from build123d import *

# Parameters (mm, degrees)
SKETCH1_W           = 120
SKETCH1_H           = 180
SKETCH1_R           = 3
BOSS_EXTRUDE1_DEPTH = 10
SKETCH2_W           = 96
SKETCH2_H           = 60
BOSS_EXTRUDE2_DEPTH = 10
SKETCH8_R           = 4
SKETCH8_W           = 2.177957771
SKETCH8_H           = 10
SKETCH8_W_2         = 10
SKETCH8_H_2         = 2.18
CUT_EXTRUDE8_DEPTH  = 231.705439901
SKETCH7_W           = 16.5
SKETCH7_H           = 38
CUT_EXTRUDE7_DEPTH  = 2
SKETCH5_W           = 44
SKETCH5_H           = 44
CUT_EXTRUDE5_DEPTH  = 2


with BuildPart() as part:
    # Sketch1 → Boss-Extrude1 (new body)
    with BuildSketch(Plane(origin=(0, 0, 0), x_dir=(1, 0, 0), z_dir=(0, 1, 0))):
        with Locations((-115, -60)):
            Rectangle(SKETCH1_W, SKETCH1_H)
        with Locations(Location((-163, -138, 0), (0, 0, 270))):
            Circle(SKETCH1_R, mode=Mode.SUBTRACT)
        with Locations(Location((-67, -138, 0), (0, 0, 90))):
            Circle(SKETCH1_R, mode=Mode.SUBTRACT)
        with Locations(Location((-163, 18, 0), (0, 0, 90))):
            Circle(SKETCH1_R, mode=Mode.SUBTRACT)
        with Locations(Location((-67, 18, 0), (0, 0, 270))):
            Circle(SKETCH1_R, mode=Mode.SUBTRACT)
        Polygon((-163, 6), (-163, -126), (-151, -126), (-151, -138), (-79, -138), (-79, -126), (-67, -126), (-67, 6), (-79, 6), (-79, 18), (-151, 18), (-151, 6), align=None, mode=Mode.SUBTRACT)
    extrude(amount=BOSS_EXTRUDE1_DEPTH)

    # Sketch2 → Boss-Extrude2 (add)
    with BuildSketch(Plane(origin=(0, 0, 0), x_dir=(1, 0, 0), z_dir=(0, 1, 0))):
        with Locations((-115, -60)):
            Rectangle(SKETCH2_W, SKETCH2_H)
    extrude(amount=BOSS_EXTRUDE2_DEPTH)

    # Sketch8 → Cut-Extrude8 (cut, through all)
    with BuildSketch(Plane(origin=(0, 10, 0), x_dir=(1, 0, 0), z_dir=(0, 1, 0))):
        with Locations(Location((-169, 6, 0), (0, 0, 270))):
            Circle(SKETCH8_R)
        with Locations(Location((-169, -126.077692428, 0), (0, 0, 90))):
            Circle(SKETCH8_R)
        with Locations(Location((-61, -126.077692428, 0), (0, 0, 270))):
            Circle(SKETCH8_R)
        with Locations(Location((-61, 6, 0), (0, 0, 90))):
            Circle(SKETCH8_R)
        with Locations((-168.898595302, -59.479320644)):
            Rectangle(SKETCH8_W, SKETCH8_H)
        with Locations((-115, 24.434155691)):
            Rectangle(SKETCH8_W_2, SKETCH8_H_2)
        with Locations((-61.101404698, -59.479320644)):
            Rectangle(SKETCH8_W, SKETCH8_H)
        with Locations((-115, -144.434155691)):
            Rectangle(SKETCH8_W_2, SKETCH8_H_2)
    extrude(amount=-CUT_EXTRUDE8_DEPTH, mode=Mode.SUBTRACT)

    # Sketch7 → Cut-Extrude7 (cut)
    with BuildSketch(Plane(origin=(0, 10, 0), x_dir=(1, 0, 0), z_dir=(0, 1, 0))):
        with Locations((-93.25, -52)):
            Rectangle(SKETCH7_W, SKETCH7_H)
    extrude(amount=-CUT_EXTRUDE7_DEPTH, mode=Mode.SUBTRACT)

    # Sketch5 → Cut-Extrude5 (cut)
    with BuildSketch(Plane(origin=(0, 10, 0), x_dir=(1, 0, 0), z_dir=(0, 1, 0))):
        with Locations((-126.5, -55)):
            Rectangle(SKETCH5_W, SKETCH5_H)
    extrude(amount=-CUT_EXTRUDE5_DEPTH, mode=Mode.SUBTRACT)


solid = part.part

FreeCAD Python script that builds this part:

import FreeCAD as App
import Part
import Sketcher
Q = App.Units.Quantity

doc = App.newDocument("Part")
body = doc.addObject("PartDesign::Body", "Body")

# Sketch on XZ plane
sketch1 = body.newObject("Sketcher::SketchObject", "Sketch")
sketch1.AttachmentSupport = (doc.getObject("XZ_Plane"), [""])
sketch1.MapMode = "FlatFace"
sketch1.addGeometry([
    Part.LineSegment(App.Vector(-175, -30, 0), App.Vector(-175, 150, 0)),  # 0
    Part.LineSegment(App.Vector(-175, 150, 0), App.Vector(-55, 150, 0)),  # 1
    Part.LineSegment(App.Vector(-55, 150, 0), App.Vector(-55, -30, 0)),  # 2
    Part.LineSegment(App.Vector(-55, -30, 0), App.Vector(-175, -30, 0)),  # 3
    Part.Circle(App.Vector(-163, 138, 0), App.Vector(0, 0, 1), 3),  # 4
    Part.Circle(App.Vector(-67, 138, 0), App.Vector(0, 0, 1), 3),  # 5
    Part.Circle(App.Vector(-163, -18, 0), App.Vector(0, 0, 1), 3),  # 6
    Part.LineSegment(App.Vector(-163, 126, 0), App.Vector(-163, -6, 0)),  # 7
    Part.LineSegment(App.Vector(-163, -6, 0), App.Vector(-151, -6, 0)),  # 8
    Part.LineSegment(App.Vector(-151, -6, 0), App.Vector(-151, -18, 0)),  # 9
    Part.LineSegment(App.Vector(-151, -18, 0), App.Vector(-79, -18, 0)),  # 10
    Part.LineSegment(App.Vector(-79, -18, 0), App.Vector(-79, -6, 0)),  # 11
    Part.LineSegment(App.Vector(-79, -6, 0), App.Vector(-67, -6, 0)),  # 12
    Part.LineSegment(App.Vector(-67, -6, 0), App.Vector(-67, 126, 0)),  # 13
    Part.LineSegment(App.Vector(-67, 126, 0), App.Vector(-79, 126, 0)),  # 14
    Part.LineSegment(App.Vector(-79, 126, 0), App.Vector(-79, 138, 0)),  # 15
    Part.LineSegment(App.Vector(-79, 138, 0), App.Vector(-151, 138, 0)),  # 16
    Part.LineSegment(App.Vector(-151, 138, 0), App.Vector(-151, 126, 0)),  # 17
    Part.LineSegment(App.Vector(-151, 126, 0), App.Vector(-163, 126, 0)),  # 18
    Part.Circle(App.Vector(-67, -18, 0), App.Vector(0, 0, 1), 3),  # 19
], False)
sketch1.addConstraint([
    Sketcher.Constraint("Coincident", 0, 2, 1, 1),
    Sketcher.Constraint("Coincident", 1, 2, 2, 1),
    Sketcher.Constraint("Coincident", 2, 2, 3, 1),
    Sketcher.Constraint("Coincident", 3, 2, 0, 1),
    Sketcher.Constraint("Coincident", 7, 2, 8, 1),
    Sketcher.Constraint("Coincident", 8, 2, 9, 1),
    Sketcher.Constraint("Coincident", 9, 2, 10, 1),
    Sketcher.Constraint("Coincident", 10, 2, 11, 1),
    Sketcher.Constraint("Coincident", 11, 2, 12, 1),
    Sketcher.Constraint("Coincident", 12, 2, 13, 1),
    Sketcher.Constraint("Coincident", 13, 2, 14, 1),
    Sketcher.Constraint("Coincident", 14, 2, 15, 1),
    Sketcher.Constraint("Coincident", 15, 2, 16, 1),
    Sketcher.Constraint("Coincident", 16, 2, 17, 1),
    Sketcher.Constraint("Coincident", 17, 2, 18, 1),
    Sketcher.Constraint("Coincident", 18, 2, 7, 1),
    Sketcher.Constraint("Vertical", 0),
    Sketcher.Constraint("Horizontal", 1),
    Sketcher.Constraint("Vertical", 2),
    Sketcher.Constraint("Horizontal", 3),
    Sketcher.Constraint("Vertical", 7),
    Sketcher.Constraint("Horizontal", 8),
    Sketcher.Constraint("Vertical", 9),
    Sketcher.Constraint("Horizontal", 10),
    Sketcher.Constraint("Vertical", 11),
    Sketcher.Constraint("Horizontal", 12),
    Sketcher.Constraint("Vertical", 13),
    Sketcher.Constraint("Horizontal", 14),
    Sketcher.Constraint("Vertical", 15),
    Sketcher.Constraint("Horizontal", 16),
    Sketcher.Constraint("Vertical", 17),
    Sketcher.Constraint("Horizontal", 18),
    Sketcher.Constraint("Equal", 4, 5),
    Sketcher.Constraint("Equal", 5, 6),
    Sketcher.Constraint("Equal", 6, 19),
    Sketcher.Constraint("Horizontal", 4, 3, 5, 3),
    Sketcher.Constraint("Horizontal", 6, 3, 19, 3),
    Sketcher.Constraint("Horizontal", 19, 3, 9, 2),
    Sketcher.Constraint("Horizontal", 8, 2, 11, 2),
    Sketcher.Constraint("Horizontal", 5, 3, 15, 2),
    Sketcher.Constraint("Horizontal", 14, 2, 17, 2),
    Sketcher.Constraint("Vertical", 4, 3, 6, 3),
    Sketcher.Constraint("Vertical", 5, 3, 19, 3),
    Sketcher.Constraint("Vertical", 6, 3, 7, 2),
    Sketcher.Constraint("Vertical", 19, 3, 12, 2),
    Sketcher.Constraint("Vertical", 11, 2, 14, 2),
    Sketcher.Constraint("Vertical", 9, 2, 16, 2),
    Sketcher.Constraint("Equal", 8, 12),
    Sketcher.Constraint("Equal", 18, 9),
    Sketcher.Constraint("Equal", 11, 15),
    Sketcher.Constraint("Diameter", 4, Q("6 mm")),
    Sketcher.Constraint("DistanceX", 1, 1, 1, 2, Q("120 mm")),
    Sketcher.Constraint("DistanceX", 8, 1, 8, 2, Q("12 mm")),
    Sketcher.Constraint("DistanceX", 10, 1, 10, 2, Q("72 mm")),
    Sketcher.Constraint("DistanceY", 0, 1, 0, 2, Q("180 mm")),
    Sketcher.Constraint("DistanceY", 7, 2, 7, 1, Q("132 mm")),
    Sketcher.Constraint("DistanceX", 4, 3, -1, 1, Q("163 mm")),
    Sketcher.Constraint("DistanceY", -1, 1, 4, 3, Q("138 mm")),
    Sketcher.Constraint("DistanceX", 0, 2, -1, 1, Q("175 mm")),
    Sketcher.Constraint("DistanceY", -1, 1, 0, 2, Q("150 mm")),
])
pad1 = body.newObject("PartDesign::Pad", "Pad")
pad1.Profile = sketch1
pad1.Length = 10
pad1.Reversed = True

# Sketch on XZ plane
sketch2 = body.newObject("Sketcher::SketchObject", "Sketch001")
sketch2.AttachmentSupport = (doc.getObject("XZ_Plane"), [""])
sketch2.MapMode = "FlatFace"
sketch2.addGeometry([
    Part.LineSegment(App.Vector(-163, 30, 0), App.Vector(-163, 90, 0)),
    Part.LineSegment(App.Vector(-163, 90, 0), App.Vector(-67, 90, 0)),
    Part.LineSegment(App.Vector(-67, 90, 0), App.Vector(-67, 30, 0)),
    Part.LineSegment(App.Vector(-67, 30, 0), App.Vector(-163, 30, 0)),
], False)
sketch2.addConstraint([
    Sketcher.Constraint("Coincident", 0, 2, 1, 1),
    Sketcher.Constraint("Coincident", 1, 2, 2, 1),
    Sketcher.Constraint("Coincident", 2, 2, 3, 1),
    Sketcher.Constraint("Coincident", 3, 2, 0, 1),
    Sketcher.Constraint("Vertical", 0),
    Sketcher.Constraint("Horizontal", 1),
    Sketcher.Constraint("Vertical", 2),
    Sketcher.Constraint("Horizontal", 3),
    Sketcher.Constraint("DistanceX", 1, 1, 1, 2, Q("96 mm")),
    Sketcher.Constraint("DistanceY", 0, 1, 0, 2, Q("60 mm")),
    Sketcher.Constraint("DistanceX", 0, 2, -1, 1, Q("163 mm")),
    Sketcher.Constraint("DistanceY", -1, 1, 0, 2, Q("90 mm")),
])
pad2 = body.newObject("PartDesign::Pad", "Pad001")
pad2.Profile = sketch2
pad2.Length = 10
pad2.Reversed = True

# Sketch on XZ plane
sketch3 = body.newObject("Sketcher::SketchObject", "Sketch002")
sketch3.AttachmentSupport = (doc.getObject("XZ_Plane"), [""])
sketch3.MapMode = "FlatFace"
sketch3.AttachmentOffset = App.Placement(App.Vector(0, 0, -10), App.Rotation())
sketch3.addGeometry([
    Part.Circle(App.Vector(-169, -6, 0), App.Vector(0, 0, 1), 4),  # 0
    Part.Circle(App.Vector(-169, 126.077692, 0), App.Vector(0, 0, 1), 4),  # 1
    Part.Circle(App.Vector(-61, 126.077692, 0), App.Vector(0, 0, 1), 4),  # 2
    Part.Circle(App.Vector(-61, -6, 0), App.Vector(0, 0, 1), 4),  # 3
    Part.LineSegment(App.Vector(-169.987574, 54.479321, 0), App.Vector(-169.987574, 64.479321, 0)),  # 4
    Part.LineSegment(App.Vector(-169.987574, 64.479321, 0), App.Vector(-167.809616, 64.479321, 0)),  # 5
    Part.LineSegment(App.Vector(-167.809616, 64.479321, 0), App.Vector(-167.809616, 54.479321, 0)),  # 6
    Part.LineSegment(App.Vector(-167.809616, 54.479321, 0), App.Vector(-169.987574, 54.479321, 0)),  # 7
    Part.LineSegment(App.Vector(-120, -25.524156, 0), App.Vector(-120, -23.344156, 0)),  # 8
    Part.LineSegment(App.Vector(-120, -23.344156, 0), App.Vector(-110, -23.344156, 0)),  # 9
    Part.LineSegment(App.Vector(-110, -23.344156, 0), App.Vector(-110, -25.524156, 0)),  # 10
    Part.LineSegment(App.Vector(-110, -25.524156, 0), App.Vector(-120, -25.524156, 0)),  # 11
    Part.LineSegment(App.Vector(-62.190384, 54.479321, 0), App.Vector(-62.190384, 64.479321, 0)),  # 12
    Part.LineSegment(App.Vector(-62.190384, 64.479321, 0), App.Vector(-60.012426, 64.479321, 0)),  # 13
    Part.LineSegment(App.Vector(-60.012426, 64.479321, 0), App.Vector(-60.012426, 54.479321, 0)),  # 14
    Part.LineSegment(App.Vector(-60.012426, 54.479321, 0), App.Vector(-62.190384, 54.479321, 0)),  # 15
    Part.LineSegment(App.Vector(-120, 143.344156, 0), App.Vector(-120, 145.524156, 0)),  # 16
    Part.LineSegment(App.Vector(-120, 145.524156, 0), App.Vector(-110, 145.524156, 0)),  # 17
    Part.LineSegment(App.Vector(-110, 145.524156, 0), App.Vector(-110, 143.344156, 0)),  # 18
    Part.LineSegment(App.Vector(-110, 143.344156, 0), App.Vector(-120, 143.344156, 0)),  # 19
], False)
sketch3.addConstraint([
    Sketcher.Constraint("Coincident", 4, 2, 5, 1),
    Sketcher.Constraint("Coincident", 5, 2, 6, 1),
    Sketcher.Constraint("Coincident", 6, 2, 7, 1),
    Sketcher.Constraint("Coincident", 7, 2, 4, 1),
    Sketcher.Constraint("Coincident", 8, 2, 9, 1),
    Sketcher.Constraint("Coincident", 9, 2, 10, 1),
    Sketcher.Constraint("Coincident", 10, 2, 11, 1),
    Sketcher.Constraint("Coincident", 11, 2, 8, 1),
    Sketcher.Constraint("Coincident", 12, 2, 13, 1),
    Sketcher.Constraint("Coincident", 13, 2, 14, 1),
    Sketcher.Constraint("Coincident", 14, 2, 15, 1),
    Sketcher.Constraint("Coincident", 15, 2, 12, 1),
    Sketcher.Constraint("Coincident", 16, 2, 17, 1),
    Sketcher.Constraint("Coincident", 17, 2, 18, 1),
    Sketcher.Constraint("Coincident", 18, 2, 19, 1),
    Sketcher.Constraint("Coincident", 19, 2, 16, 1),
    Sketcher.Constraint("Vertical", 4),
    Sketcher.Constraint("Horizontal", 5),
    Sketcher.Constraint("Vertical", 6),
    Sketcher.Constraint("Horizontal", 7),
    Sketcher.Constraint("Vertical", 8),
    Sketcher.Constraint("Horizontal", 9),
    Sketcher.Constraint("Vertical", 10),
    Sketcher.Constraint("Horizontal", 11),
    Sketcher.Constraint("Vertical", 12),
    Sketcher.Constraint("Horizontal", 13),
    Sketcher.Constraint("Vertical", 14),
    Sketcher.Constraint("Horizontal", 15),
    Sketcher.Constraint("Vertical", 16),
    Sketcher.Constraint("Horizontal", 17),
    Sketcher.Constraint("Vertical", 18),
    Sketcher.Constraint("Horizontal", 19),
    Sketcher.Constraint("Equal", 0, 1),
    Sketcher.Constraint("Equal", 1, 2),
    Sketcher.Constraint("Equal", 2, 3),
    Sketcher.Constraint("Horizontal", 1, 3, 2, 3),
    Sketcher.Constraint("Horizontal", 0, 3, 3, 3),
    Sketcher.Constraint("Horizontal", 5, 2, 12, 2),
    Sketcher.Constraint("Horizontal", 7, 2, 14, 2),
    Sketcher.Constraint("Vertical", 0, 3, 1, 3),
    Sketcher.Constraint("Vertical", 2, 3, 3, 3),
    Sketcher.Constraint("Vertical", 11, 2, 16, 2),
    Sketcher.Constraint("Vertical", 10, 2, 17, 2),
    Sketcher.Constraint("Equal", 7, 13),
    Sketcher.Constraint("Equal", 19, 4),
    Sketcher.Constraint("Equal", 10, 16),
    Sketcher.Constraint("Diameter", 0, Q("8 mm")),
    Sketcher.Constraint("DistanceX", 9, 1, 9, 2, Q("10 mm")),
    Sketcher.Constraint("DistanceX", 0, 3, -1, 1, Q("169 mm")),
    Sketcher.Constraint("DistanceY", 0, 3, -1, 1, Q("6 mm")),
    Sketcher.Constraint("DistanceX", 2, 3, -1, 1, Q("61 mm")),
    Sketcher.Constraint("DistanceX", 8, 2, -1, 1, Q("120 mm")),
    Sketcher.Constraint("DistanceY", 8, 1, 8, 2, Q("2.18 mm")),
    Sketcher.Constraint("DistanceX", 5, 1, 5, 2, Q("2.177958 mm")),
    Sketcher.Constraint("DistanceY", -1, 1, 4, 2, Q("64.479321 mm")),
    Sketcher.Constraint("DistanceY", 4, 2, 1, 3, Q("61.598372 mm")),
    Sketcher.Constraint("DistanceX", 4, 2, -1, 1, Q("169.987574 mm")),
    Sketcher.Constraint("DistanceY", 8, 2, -1, 1, Q("23.344156 mm")),
    Sketcher.Constraint("DistanceX", 12, 2, -1, 1, Q("62.190384 mm")),
    Sketcher.Constraint("DistanceY", -1, 1, 16, 2, Q("145.524156 mm")),
])
pocket1 = body.newObject("PartDesign::Pocket", "Pocket")
pocket1.Profile = sketch3
pocket1.Type = "ThroughAll"
pocket1.Reversed = True

# Sketch on XZ plane
sketch4 = body.newObject("Sketcher::SketchObject", "Sketch003")
sketch4.AttachmentSupport = (doc.getObject("XZ_Plane"), [""])
sketch4.MapMode = "FlatFace"
sketch4.AttachmentOffset = App.Placement(App.Vector(0, 0, -10), App.Rotation())
sketch4.addGeometry([
    Part.LineSegment(App.Vector(-101.5, 33, 0), App.Vector(-101.5, 71, 0)),
    Part.LineSegment(App.Vector(-101.5, 71, 0), App.Vector(-85, 71, 0)),
    Part.LineSegment(App.Vector(-85, 71, 0), App.Vector(-85, 33, 0)),
    Part.LineSegment(App.Vector(-85, 33, 0), App.Vector(-101.5, 33, 0)),
], False)
sketch4.addConstraint([
    Sketcher.Constraint("Coincident", 0, 2, 1, 1),
    Sketcher.Constraint("Coincident", 1, 2, 2, 1),
    Sketcher.Constraint("Coincident", 2, 2, 3, 1),
    Sketcher.Constraint("Coincident", 3, 2, 0, 1),
    Sketcher.Constraint("Vertical", 0),
    Sketcher.Constraint("Horizontal", 1),
    Sketcher.Constraint("Vertical", 2),
    Sketcher.Constraint("Horizontal", 3),
    Sketcher.Constraint("DistanceY", 0, 1, 0, 2, Q("38 mm")),
    Sketcher.Constraint("DistanceX", 1, 1, 1, 2, Q("16.5 mm")),
    Sketcher.Constraint("DistanceY", -1, 1, 0, 2, Q("71 mm")),
    Sketcher.Constraint("DistanceX", 1, 2, -1, 1, Q("85 mm")),
])
pocket2 = body.newObject("PartDesign::Pocket", "Pocket001")
pocket2.Profile = sketch4
pocket2.Length = 2
pocket2.Reversed = True

# Sketch on XZ plane
sketch5 = body.newObject("Sketcher::SketchObject", "Sketch004")
sketch5.AttachmentSupport = (doc.getObject("XZ_Plane"), [""])
sketch5.MapMode = "FlatFace"
sketch5.AttachmentOffset = App.Placement(App.Vector(0, 0, -10), App.Rotation())
sketch5.addGeometry([
    Part.LineSegment(App.Vector(-148.5, 33, 0), App.Vector(-148.5, 77, 0)),
    Part.LineSegment(App.Vector(-148.5, 77, 0), App.Vector(-104.5, 77, 0)),
    Part.LineSegment(App.Vector(-104.5, 77, 0), App.Vector(-104.5, 33, 0)),
    Part.LineSegment(App.Vector(-104.5, 33, 0), App.Vector(-148.5, 33, 0)),
], False)
sketch5.addConstraint([
    Sketcher.Constraint("Coincident", 0, 2, 1, 1),
    Sketcher.Constraint("Coincident", 1, 2, 2, 1),
    Sketcher.Constraint("Coincident", 2, 2, 3, 1),
    Sketcher.Constraint("Coincident", 3, 2, 0, 1),
    Sketcher.Constraint("Vertical", 0),
    Sketcher.Constraint("Horizontal", 1),
    Sketcher.Constraint("Vertical", 2),
    Sketcher.Constraint("Horizontal", 3),
    Sketcher.Constraint("Equal", 3, 0),
    Sketcher.Constraint("DistanceX", 1, 1, 1, 2, Q("44 mm")),
    Sketcher.Constraint("DistanceY", -1, 1, 0, 2, Q("77 mm")),
    Sketcher.Constraint("DistanceX", 0, 2, -1, 1, Q("148.5 mm")),
])
pocket3 = body.newObject("PartDesign::Pocket", "Pocket002")
pocket3.Profile = sketch5
pocket3.Length = 2
pocket3.Reversed = True

doc.recompute()
